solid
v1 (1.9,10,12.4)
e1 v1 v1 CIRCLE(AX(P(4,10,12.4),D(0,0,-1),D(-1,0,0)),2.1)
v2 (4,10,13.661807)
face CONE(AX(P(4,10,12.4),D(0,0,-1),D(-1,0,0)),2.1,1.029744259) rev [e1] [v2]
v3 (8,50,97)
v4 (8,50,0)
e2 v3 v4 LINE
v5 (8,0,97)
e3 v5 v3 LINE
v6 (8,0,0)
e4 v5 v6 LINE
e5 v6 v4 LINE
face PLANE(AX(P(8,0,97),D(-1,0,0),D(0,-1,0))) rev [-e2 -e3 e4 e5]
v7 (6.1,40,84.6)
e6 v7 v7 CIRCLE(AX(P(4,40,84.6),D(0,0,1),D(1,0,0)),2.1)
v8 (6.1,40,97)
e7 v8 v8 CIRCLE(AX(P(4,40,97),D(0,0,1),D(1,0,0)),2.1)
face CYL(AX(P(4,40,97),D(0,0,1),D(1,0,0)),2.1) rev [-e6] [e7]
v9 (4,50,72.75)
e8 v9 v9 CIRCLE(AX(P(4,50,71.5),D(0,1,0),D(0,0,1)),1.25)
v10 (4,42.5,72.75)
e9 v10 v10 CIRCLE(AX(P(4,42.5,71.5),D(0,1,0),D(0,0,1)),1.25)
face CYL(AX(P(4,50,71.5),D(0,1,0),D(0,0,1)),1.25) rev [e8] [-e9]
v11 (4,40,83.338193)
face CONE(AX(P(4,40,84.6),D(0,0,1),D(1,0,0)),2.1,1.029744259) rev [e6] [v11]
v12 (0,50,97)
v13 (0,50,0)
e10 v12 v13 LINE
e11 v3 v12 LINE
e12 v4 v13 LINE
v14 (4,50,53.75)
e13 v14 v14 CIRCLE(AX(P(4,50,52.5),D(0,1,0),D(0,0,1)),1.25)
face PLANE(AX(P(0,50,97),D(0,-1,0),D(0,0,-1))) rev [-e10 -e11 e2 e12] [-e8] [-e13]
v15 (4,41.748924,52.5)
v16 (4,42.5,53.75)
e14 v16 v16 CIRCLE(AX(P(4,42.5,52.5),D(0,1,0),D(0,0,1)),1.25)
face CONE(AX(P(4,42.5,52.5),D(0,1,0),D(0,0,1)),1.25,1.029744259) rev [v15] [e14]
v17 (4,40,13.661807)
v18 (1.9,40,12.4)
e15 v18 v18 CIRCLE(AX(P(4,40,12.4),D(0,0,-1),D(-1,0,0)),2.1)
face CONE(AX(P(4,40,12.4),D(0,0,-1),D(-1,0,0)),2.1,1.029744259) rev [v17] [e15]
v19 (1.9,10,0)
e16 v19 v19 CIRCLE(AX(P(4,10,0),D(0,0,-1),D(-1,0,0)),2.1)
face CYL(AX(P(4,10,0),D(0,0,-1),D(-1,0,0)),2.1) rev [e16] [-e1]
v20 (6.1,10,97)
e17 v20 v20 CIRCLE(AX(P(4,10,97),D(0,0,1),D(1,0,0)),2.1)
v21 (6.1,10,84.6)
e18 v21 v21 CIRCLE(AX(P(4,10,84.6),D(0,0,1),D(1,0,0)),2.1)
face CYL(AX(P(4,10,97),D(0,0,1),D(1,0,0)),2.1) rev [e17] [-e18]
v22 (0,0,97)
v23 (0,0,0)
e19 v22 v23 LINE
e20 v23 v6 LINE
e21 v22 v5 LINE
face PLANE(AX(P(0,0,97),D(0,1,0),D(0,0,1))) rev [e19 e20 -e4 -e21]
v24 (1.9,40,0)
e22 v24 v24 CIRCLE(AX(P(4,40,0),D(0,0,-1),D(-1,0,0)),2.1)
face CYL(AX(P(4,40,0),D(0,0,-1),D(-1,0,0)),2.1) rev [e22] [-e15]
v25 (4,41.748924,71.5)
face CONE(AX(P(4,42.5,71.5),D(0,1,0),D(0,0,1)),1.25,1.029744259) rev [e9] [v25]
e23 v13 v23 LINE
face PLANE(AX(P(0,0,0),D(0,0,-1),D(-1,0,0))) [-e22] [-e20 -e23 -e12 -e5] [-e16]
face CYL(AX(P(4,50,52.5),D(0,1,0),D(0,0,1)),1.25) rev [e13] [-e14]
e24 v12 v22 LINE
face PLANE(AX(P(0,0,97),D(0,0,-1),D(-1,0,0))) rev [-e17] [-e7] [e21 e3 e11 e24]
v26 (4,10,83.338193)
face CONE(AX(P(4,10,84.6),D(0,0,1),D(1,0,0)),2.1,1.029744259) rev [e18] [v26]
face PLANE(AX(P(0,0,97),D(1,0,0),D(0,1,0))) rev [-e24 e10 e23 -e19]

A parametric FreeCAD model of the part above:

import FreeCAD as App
import Part
import Sketcher
Q = App.Units.Quantity

doc = App.newDocument("Part")
body = doc.addObject("PartDesign::Body", "Body")

# Sketch on XY plane
sketch1 = body.newObject("Sketcher::SketchObject", "Sketch")
sketch1.AttachmentSupport = (doc.getObject("XY_Plane"), [""])
sketch1.MapMode = "FlatFace"
sketch1.addGeometry([
    Part.LineSegment(App.Vector(0, 50, 0), App.Vector(0, 0, 0)),
    Part.LineSegment(App.Vector(0, 0, 0), App.Vector(8, 0, 0)),
    Part.LineSegment(App.Vector(8, 0, 0), App.Vector(8, 50, 0)),
    Part.LineSegment(App.Vector(8, 50, 0), App.Vector(0, 50, 0)),
], False)
sketch1.addConstraint([
    Sketcher.Constraint("Coincident", 0, 2, 1, 1),
    Sketcher.Constraint("Coincident", 1, 2, 2, 1),
    Sketcher.Constraint("Coincident", 2, 2, 3, 1),
    Sketcher.Constraint("Coincident", 3, 2, 0, 1),
    Sketcher.Constraint("Vertical", 0),
    Sketcher.Constraint("Horizontal", 1),
    Sketcher.Constraint("Vertical", 2),
    Sketcher.Constraint("Horizontal", 3),
    Sketcher.Constraint("Coincident", 0, 2, -1, 1),
    Sketcher.Constraint("DistanceX", 1, 1, 1, 2, Q("8 mm")),
    Sketcher.Constraint("DistanceY", 0, 2, 0, 1, Q("50 mm")),
])
pad1 = body.newObject("PartDesign::Pad", "Pad")
pad1.Profile = sketch1
pad1.Length = 97

# Sketch on YZ plane
sketch2 = body.newObject("Sketcher::SketchObject", "Sketch001")
sketch2.AttachmentSupport = (doc.getObject("YZ_Plane"), [""])
sketch2.MapMode = "FlatFace"
sketch2.AttachmentOffset = App.Placement(App.Vector(0, 0, 4), App.Rotation())
sketch2.addGeometry([
    Part.LineSegment(App.Vector(40, 13.7, 0), App.Vector(40, 0, 0)),
    Part.LineSegment(App.Vector(40, 0, 0), App.Vector(42.1, 0, 0)),
    Part.LineSegment(App.Vector(42.1, 0, 0), App.Vector(42.1, 12.4, 0)),
    Part.LineSegment(App.Vector(42.1, 12.4, 0), App.Vector(40, 13.7, 0)),
], False)
sketch2.addGeometry(Part.LineSegment(App.Vector(40, 0, 0), App.Vector(40, 13.7, 0)), True)  # axis
sketch2.addConstraint([
    Sketcher.Constraint("Coincident", 0, 2, 1, 1),
    Sketcher.Constraint("Coincident", 1, 2, 2, 1),
    Sketcher.Constraint("Coincident", 2, 2, 3, 1),
    Sketcher.Constraint("Coincident", 3, 2, 0, 1),
    Sketcher.Constraint("Vertical", 0),
    Sketcher.Constraint("Horizontal", 1),
    Sketcher.Constraint("Vertical", 2),
    Sketcher.Constraint("Vertical", 4),
    Sketcher.Constraint("Coincident", 4, 1, 0, 2),
    Sketcher.Constraint("PointOnObject", 0, 2, -1),
    Sketcher.Constraint("Equal", 0, 4),
    Sketcher.Constraint("Angle", 3, Q("149 deg")),
    Sketcher.Constraint("DistanceX", 1, 1, 1, 2, Q("2.1 mm")),
    Sketcher.Constraint("DistanceY", 2, 1, 2, 2, Q("12.4 mm")),
    Sketcher.Constraint("DistanceX", -1, 1, 0, 2, Q("40 mm")),
])
groove = body.newObject("PartDesign::Groove", "Groove")
groove.Profile = sketch2
groove.ReferenceAxis = (sketch2, ["Axis0"])
groove.Angle = 360
doc.recompute()

linearpattern = body.newObject("PartDesign::LinearPattern", "LinearPattern")
linearpattern.Originals = [groove]
linearpattern.Direction = (doc.getObject("Y_Axis"), [""])
linearpattern.Mode = "offset"
linearpattern.Offset = 30
linearpattern.Occurrences = 2
linearpattern.Reversed = True
body.Tip = linearpattern
doc.recompute()

datumplane = body.newObject("PartDesign::Plane", "DatumPlane")
datumplane.AttachmentSupport = (doc.getObject("XY_Plane"), [""])
datumplane.MapMode = "FlatFace"
datumplane.AttachmentOffset = App.Placement(App.Vector(0, 0, 48.5), App.Rotation())
mirrored = body.newObject("PartDesign::Mirrored", "Mirrored")
mirrored.Originals = [groove]
mirrored.MirrorPlane = (datumplane, [""])
body.Tip = mirrored

# Sketch on YZ plane
sketch3 = body.newObject("Sketcher::SketchObject", "Sketch002")
sketch3.AttachmentSupport = (doc.getObject("YZ_Plane"), [""])
sketch3.MapMode = "FlatFace"
sketch3.AttachmentOffset = App.Placement(App.Vector(0, 0, 4), App.Rotation())
sketch3.addGeometry([
    Part.LineSegment(App.Vector(10, 97, 0), App.Vector(10, 83.3, 0)),
    Part.LineSegment(App.Vector(10, 83.3, 0), App.Vector(12.1, 84.6, 0)),
    Part.LineSegment(App.Vector(12.1, 84.6, 0), App.Vector(12.1, 97, 0)),
    Part.LineSegment(App.Vector(12.1, 97, 0), App.Vector(10, 97, 0)),
], False)
sketch3.addGeometry(Part.LineSegment(App.Vector(10, 83.3, 0), App.Vector(10, 97, 0)), True)  # axis
sketch3.addConstraint([
    Sketcher.Constraint("Coincident", 0, 2, 1, 1),
    Sketcher.Constraint("Coincident", 1, 2, 2, 1),
    Sketcher.Constraint("Coincident", 2, 2, 3, 1),
    Sketcher.Constraint("Coincident", 3, 2, 0, 1),
    Sketcher.Constraint("Vertical", 0),
    Sketcher.Constraint("Vertical", 2),
    Sketcher.Constraint("Horizontal", 3),
    Sketcher.Constraint("Vertical", 4),
    Sketcher.Constraint("Coincident", 4, 1, 0, 2),
    Sketcher.Constraint("Horizontal", 2, 2, 4, 2),
    Sketcher.Constraint("Angle", 1, Q("31 deg")),
    Sketcher.Constraint("DistanceX", 3, 2, 3, 1, Q("2.1 mm")),
    Sketcher.Constraint("DistanceY", 2, 1, 2, 2, Q("12.4 mm")),
    Sketcher.Constraint("DistanceX", -1, 1, 0, 2, Q("10 mm")),
    Sketcher.Constraint("DistanceY", -1, 1, 2, 2, Q("97 mm")),
])
groove2 = body.newObject("PartDesign::Groove", "Groove001")
groove2.Profile = sketch3
groove2.ReferenceAxis = (sketch3, ["Axis0"])
groove2.Angle = 360

# Sketch on XZ plane
sketch4 = body.newObject("Sketcher::SketchObject", "Sketch003")
sketch4.AttachmentSupport = (doc.getObject("XZ_Plane"), [""])
sketch4.MapMode = "FlatFace"
sketch4.AttachmentOffset = App.Placement(App.Vector(0, 0, -50), App.Rotation())
sketch4.addGeometry([
    Part.Circle(App.Vector(4, 71.5, 0), App.Vector(0, 0, 1), 1.2),
    Part.Circle(App.Vector(4, 52.5, 0), App.Vector(0, 0, 1), 1.2),
], False)
sketch4.addConstraint([
    Sketcher.Constraint("Equal", 0, 1),
    Sketcher.Constraint("Vertical", 0, 3, 1, 3),
    Sketcher.Constraint("Diameter", 0, Q("2.5 mm")),
    Sketcher.Constraint("DistanceX", -1, 1, 0, 3, Q("4 mm")),
    Sketcher.Constraint("DistanceY", 1, 3, 0, 3, Q("19 mm")),
    Sketcher.Constraint("DistanceY", -1, 1, 0, 3, Q("71.5 mm")),
])
doc.recompute()
hole = body.newObject("PartDesign::Hole", "Hole")
hole.Profile = sketch4
hole.ThreadType = "None"
hole.Diameter = 2.5
hole.DepthType = "Dimension"
hole.Depth = 7.5
hole.DrillPoint = "Angled"
hole.DrillPointAngle = 118
hole.Reversed = True

doc.recompute()
